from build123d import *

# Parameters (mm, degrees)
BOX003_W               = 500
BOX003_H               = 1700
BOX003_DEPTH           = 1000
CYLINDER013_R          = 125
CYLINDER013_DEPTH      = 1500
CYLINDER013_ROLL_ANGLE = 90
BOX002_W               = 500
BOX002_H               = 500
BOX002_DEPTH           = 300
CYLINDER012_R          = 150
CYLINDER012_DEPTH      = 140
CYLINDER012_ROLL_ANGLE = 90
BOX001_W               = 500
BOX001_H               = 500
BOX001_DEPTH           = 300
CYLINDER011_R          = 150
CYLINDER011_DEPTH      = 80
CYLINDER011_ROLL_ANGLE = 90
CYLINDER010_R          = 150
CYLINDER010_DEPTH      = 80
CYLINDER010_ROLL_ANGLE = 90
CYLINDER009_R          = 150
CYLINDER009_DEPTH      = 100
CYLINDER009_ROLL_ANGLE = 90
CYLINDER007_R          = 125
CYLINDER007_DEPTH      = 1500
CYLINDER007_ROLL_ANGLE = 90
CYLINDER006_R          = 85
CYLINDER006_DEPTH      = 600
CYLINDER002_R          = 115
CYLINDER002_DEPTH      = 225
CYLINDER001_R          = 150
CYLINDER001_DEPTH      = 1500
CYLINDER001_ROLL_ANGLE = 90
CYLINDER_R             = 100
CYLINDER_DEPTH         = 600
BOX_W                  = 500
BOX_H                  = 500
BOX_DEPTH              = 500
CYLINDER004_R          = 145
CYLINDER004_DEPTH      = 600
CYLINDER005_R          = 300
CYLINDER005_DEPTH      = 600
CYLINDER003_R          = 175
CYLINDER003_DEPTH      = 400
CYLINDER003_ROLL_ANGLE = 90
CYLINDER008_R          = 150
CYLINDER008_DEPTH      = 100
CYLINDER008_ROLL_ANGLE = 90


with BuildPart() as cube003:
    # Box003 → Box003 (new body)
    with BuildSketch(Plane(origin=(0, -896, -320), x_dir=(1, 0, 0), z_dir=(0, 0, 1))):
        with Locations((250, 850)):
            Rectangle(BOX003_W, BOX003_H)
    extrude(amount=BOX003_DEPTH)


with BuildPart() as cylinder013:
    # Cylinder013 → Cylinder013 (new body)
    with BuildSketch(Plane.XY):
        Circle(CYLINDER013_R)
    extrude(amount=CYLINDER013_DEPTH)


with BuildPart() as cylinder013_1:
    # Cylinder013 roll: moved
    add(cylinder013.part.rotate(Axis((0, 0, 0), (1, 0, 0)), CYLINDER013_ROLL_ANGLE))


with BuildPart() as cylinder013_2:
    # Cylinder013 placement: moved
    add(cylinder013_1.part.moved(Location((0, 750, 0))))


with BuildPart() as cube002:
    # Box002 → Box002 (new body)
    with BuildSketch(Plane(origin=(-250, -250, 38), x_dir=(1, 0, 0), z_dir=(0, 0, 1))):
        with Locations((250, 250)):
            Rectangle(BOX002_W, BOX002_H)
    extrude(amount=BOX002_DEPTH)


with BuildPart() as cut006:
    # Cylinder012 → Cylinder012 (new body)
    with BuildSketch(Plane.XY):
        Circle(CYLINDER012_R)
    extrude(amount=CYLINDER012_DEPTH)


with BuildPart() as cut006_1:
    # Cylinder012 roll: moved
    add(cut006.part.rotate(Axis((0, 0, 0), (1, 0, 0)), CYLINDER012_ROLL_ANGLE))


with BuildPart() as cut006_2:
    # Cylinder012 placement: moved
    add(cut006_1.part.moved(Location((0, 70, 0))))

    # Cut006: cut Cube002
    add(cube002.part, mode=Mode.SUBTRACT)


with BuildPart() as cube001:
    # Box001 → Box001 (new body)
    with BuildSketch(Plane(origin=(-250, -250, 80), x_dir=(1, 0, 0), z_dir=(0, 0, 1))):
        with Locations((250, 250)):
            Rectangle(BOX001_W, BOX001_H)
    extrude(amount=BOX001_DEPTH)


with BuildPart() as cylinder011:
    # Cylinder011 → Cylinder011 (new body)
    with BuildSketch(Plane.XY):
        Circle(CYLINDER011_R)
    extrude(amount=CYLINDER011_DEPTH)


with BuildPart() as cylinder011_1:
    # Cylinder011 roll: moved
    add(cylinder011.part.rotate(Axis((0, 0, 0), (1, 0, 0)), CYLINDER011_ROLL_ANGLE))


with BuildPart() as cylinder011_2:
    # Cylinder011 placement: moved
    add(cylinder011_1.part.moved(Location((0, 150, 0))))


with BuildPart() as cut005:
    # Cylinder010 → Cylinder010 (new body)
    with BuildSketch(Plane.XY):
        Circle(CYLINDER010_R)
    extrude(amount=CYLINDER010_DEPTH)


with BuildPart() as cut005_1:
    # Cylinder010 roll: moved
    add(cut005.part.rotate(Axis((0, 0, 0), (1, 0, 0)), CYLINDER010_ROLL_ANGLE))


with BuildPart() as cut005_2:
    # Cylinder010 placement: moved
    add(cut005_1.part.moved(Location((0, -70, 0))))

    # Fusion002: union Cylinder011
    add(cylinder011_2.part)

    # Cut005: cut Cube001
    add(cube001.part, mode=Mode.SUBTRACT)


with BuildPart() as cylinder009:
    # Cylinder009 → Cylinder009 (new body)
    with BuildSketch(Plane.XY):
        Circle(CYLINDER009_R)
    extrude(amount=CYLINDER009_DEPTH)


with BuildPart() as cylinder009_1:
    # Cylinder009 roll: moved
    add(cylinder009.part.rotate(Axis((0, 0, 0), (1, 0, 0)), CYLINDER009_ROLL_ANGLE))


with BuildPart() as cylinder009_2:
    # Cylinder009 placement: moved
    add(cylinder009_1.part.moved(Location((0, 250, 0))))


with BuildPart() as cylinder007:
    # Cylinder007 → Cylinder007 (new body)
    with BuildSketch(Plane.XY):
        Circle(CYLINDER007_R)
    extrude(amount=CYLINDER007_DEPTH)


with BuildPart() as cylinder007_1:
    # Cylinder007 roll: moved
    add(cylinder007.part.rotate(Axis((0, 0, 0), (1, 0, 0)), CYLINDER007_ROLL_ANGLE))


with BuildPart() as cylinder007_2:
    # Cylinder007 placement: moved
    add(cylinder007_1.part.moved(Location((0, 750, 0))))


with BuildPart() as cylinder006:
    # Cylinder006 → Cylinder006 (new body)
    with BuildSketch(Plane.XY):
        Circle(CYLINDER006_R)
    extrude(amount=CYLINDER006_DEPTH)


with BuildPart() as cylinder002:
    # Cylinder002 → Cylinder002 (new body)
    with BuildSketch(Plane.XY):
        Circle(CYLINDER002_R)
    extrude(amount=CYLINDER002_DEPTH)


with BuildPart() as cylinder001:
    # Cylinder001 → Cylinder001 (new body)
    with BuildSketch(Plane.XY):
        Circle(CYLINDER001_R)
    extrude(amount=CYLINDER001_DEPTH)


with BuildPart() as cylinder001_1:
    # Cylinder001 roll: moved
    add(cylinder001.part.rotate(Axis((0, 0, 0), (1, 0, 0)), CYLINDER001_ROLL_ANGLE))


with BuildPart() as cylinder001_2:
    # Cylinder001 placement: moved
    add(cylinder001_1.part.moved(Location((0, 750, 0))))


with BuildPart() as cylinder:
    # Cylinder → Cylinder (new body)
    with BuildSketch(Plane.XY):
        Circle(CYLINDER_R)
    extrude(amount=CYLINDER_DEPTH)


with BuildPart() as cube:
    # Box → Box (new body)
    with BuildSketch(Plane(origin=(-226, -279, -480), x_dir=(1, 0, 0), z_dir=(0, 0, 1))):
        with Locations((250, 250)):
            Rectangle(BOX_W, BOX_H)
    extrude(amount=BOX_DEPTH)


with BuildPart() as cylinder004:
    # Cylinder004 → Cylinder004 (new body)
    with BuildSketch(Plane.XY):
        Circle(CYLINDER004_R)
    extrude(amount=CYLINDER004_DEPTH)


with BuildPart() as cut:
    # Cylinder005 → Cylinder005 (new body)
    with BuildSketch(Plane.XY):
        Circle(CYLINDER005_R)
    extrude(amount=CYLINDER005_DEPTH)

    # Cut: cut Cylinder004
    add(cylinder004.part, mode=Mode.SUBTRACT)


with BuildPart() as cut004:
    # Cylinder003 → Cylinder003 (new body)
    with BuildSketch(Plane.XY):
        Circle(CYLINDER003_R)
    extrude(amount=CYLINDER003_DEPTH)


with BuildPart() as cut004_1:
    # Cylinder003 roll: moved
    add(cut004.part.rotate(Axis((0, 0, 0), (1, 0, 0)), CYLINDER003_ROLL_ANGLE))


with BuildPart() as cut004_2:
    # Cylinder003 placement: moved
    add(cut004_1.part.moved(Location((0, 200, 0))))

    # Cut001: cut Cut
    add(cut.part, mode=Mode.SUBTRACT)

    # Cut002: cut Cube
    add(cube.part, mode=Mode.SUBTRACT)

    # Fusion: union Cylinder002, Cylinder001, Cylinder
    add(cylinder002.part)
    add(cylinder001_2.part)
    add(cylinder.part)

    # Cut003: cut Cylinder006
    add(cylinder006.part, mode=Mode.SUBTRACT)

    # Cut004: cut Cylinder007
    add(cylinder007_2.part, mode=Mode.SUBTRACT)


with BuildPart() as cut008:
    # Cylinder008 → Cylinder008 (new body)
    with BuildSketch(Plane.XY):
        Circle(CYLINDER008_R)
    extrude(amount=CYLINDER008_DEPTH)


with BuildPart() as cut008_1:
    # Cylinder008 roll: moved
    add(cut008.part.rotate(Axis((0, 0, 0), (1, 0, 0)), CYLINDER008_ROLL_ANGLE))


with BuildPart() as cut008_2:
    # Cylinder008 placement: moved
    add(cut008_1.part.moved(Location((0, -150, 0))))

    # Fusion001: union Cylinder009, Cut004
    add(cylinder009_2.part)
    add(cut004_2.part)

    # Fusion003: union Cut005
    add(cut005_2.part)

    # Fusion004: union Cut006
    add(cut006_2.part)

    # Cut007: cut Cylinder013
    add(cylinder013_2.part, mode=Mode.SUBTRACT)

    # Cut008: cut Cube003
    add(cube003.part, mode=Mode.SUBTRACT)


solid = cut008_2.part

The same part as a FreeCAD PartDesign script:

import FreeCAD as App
import Part
import Sketcher
Q = App.Units.Quantity


def add_polygon(sketch, points):
    """Adds a closed chain of lines whose ends are joined by coincident constraints."""
    first, n = sketch.GeometryCount, len(points)
    for a, b in zip(points, points[1:] + points[:1]):
        sketch.addGeometry(Part.LineSegment(App.Vector(*a, 0), App.Vector(*b, 0)), False)
    for i in range(n):
        sketch.addConstraint(Sketcher.Constraint("Coincident", first + i, 2, first + (i + 1) % n, 1))

doc = App.newDocument("Part")
body = doc.addObject("PartDesign::Body", "Body")

sketch1 = body.newObject("Sketcher::SketchObject", "Sketch")
sketch1.AttachmentSupport = (doc.getObject("XY_Plane"), [""])
sketch1.MapMode = "FlatFace"
sketch1.AttachmentOffset = App.Placement(App.Vector(0, 0, -320), App.Rotation())
add_polygon(sketch1, [(0, 804), (0, -896), (500, -896), (500, 804)])
sketch1.addConstraint(Sketcher.Constraint("Vertical", 0))
sketch1.addConstraint(Sketcher.Constraint("Horizontal", 1))
sketch1.addConstraint(Sketcher.Constraint("Vertical", 2))
sketch1.addConstraint(Sketcher.Constraint("Horizontal", 3))
sketch1.addConstraint(Sketcher.Constraint("PointOnObject", 0, 2, -2))
sketch1.addConstraint(Sketcher.Constraint("DistanceX", 1, 1, 1, 2, Q("500 mm")))
sketch1.addConstraint(Sketcher.Constraint("DistanceY", 0, 2, 0, 1, Q("1700 mm")))
sketch1.addConstraint(Sketcher.Constraint("DistanceY", 0, 2, -1, 1, Q("896 mm")))
pad1 = body.newObject("PartDesign::Pad", "Pad")
pad1.Profile = sketch1
pad1.Length = 1000
body2 = doc.addObject("PartDesign::Body", "Body001")

sketch2 = body2.newObject("Sketcher::SketchObject", "Sketch001")
sketch2.AttachmentSupport = (doc.getObject("XY_Plane001"), [""])
sketch2.MapMode = "FlatFace"
sketch2.addGeometry(Part.Circle(App.Vector(0, 0, 0), App.Vector(0, 0, 1), 125), False)
sketch2.addConstraint(Sketcher.Constraint("Coincident", 0, 3, -1, 1))
sketch2.addConstraint(Sketcher.Constraint("Diameter", 0, Q("250 mm")))
pad2 = body2.newObject("PartDesign::Pad", "Pad001")
pad2.Profile = sketch2
pad2.Length = 1500
body3 = doc.addObject("PartDesign::Body", "Body002")
doc.recompute()

body2.Placement = App.Placement(App.Vector(0, 0, 0), App.Rotation(App.Vector(1, 0, 0), 90))
boolean = body3.newObject("PartDesign::Boolean", "Boolean")
boolean.Type = "Fuse"
boolean.addObjects([body2])
body4 = doc.addObject("PartDesign::Body", "Body003")
doc.recompute()

body3.Placement = App.Placement(App.Vector(0, 750, 0), App.Rotation(App.Vector(0, 0, 1), 0))
boolean2 = body4.newObject("PartDesign::Boolean", "Boolean001")
boolean2.Type = "Fuse"
boolean2.addObjects([body3])
body5 = doc.addObject("PartDesign::Body", "Body004")

sketch3 = body5.newObject("Sketcher::SketchObject", "Sketch002")
sketch3.AttachmentSupport = (doc.getObject("XY_Plane004"), [""])
sketch3.MapMode = "FlatFace"
sketch3.AttachmentOffset = App.Placement(App.Vector(0, 0, 38), App.Rotation())
add_polygon(sketch3, [(-250, 250), (-250, -250), (250, -250), (250, 250)])
sketch3.addConstraint(Sketcher.Constraint("Vertical", 0))
sketch3.addConstraint(Sketcher.Constraint("Horizontal", 1))
sketch3.addConstraint(Sketcher.Constraint("Vertical", 2))
sketch3.addConstraint(Sketcher.Constraint("Horizontal", 3))
sketch3.addConstraint(Sketcher.Constraint("Symmetric", 0, 2, 2, 2, -1, 1))
sketch3.addConstraint(Sketcher.Constraint("Equal", 3, 0))
sketch3.addConstraint(Sketcher.Constraint("DistanceX", 1, 1, 1, 2, Q("500 mm")))
pad3 = body5.newObject("PartDesign::Pad", "Pad002")
pad3.Profile = sketch3
pad3.Length = 300
body6 = doc.addObject("PartDesign::Body", "Body005")

sketch4 = body6.newObject("Sketcher::SketchObject", "Sketch003")
sketch4.AttachmentSupport = (doc.getObject("XY_Plane005"), [""])
sketch4.MapMode = "FlatFace"
sketch4.addGeometry(Part.Circle(App.Vector(0, 0, 0), App.Vector(0, 0, 1), 150), False)
sketch4.addConstraint(Sketcher.Constraint("Coincident", 0, 3, -1, 1))
sketch4.addConstraint(Sketcher.Constraint("Diameter", 0, Q("300 mm")))
pad4 = body6.newObject("PartDesign::Pad", "Pad003")
pad4.Profile = sketch4
pad4.Length = 140
body7 = doc.addObject("PartDesign::Body", "Body006")
doc.recompute()

body6.Placement = App.Placement(App.Vector(0, 0, 0), App.Rotation(App.Vector(1, 0, 0), 90))
boolean3 = body7.newObject("PartDesign::Boolean", "Boolean002")
boolean3.Type = "Fuse"
boolean3.addObjects([body6])
body8 = doc.addObject("PartDesign::Body", "Body007")
doc.recompute()

body7.Placement = App.Placement(App.Vector(0, 70, 0), App.Rotation(App.Vector(0, 0, 1), 0))
boolean4 = body8.newObject("PartDesign::Boolean", "Boolean003")
boolean4.Type = "Fuse"
boolean4.addObjects([body7])
doc.recompute()

boolean5 = body8.newObject("PartDesign::Boolean", "Boolean004")
boolean5.Type = "Cut"
boolean5.addObjects([body5])
body9 = doc.addObject("PartDesign::Body", "Body008")

sketch5 = body9.newObject("Sketcher::SketchObject", "Sketch004")
sketch5.AttachmentSupport = (doc.getObject("XY_Plane008"), [""])
sketch5.MapMode = "FlatFace"
sketch5.AttachmentOffset = App.Placement(App.Vector(0, 0, 80), App.Rotation())
add_polygon(sketch5, [(-250, 250), (-250, -250), (250, -250), (250, 250)])
sketch5.addConstraint(Sketcher.Constraint("Vertical", 0))
sketch5.addConstraint(Sketcher.Constraint("Horizontal", 1))
sketch5.addConstraint(Sketcher.Constraint("Vertical", 2))
sketch5.addConstraint(Sketcher.Constraint("Horizontal", 3))
sketch5.addConstraint(Sketcher.Constraint("Symmetric", 0, 2, 2, 2, -1, 1))
sketch5.addConstraint(Sketcher.Constraint("Equal", 3, 0))
sketch5.addConstraint(Sketcher.Constraint("DistanceX", 1, 1, 1, 2, Q("500 mm")))
pad5 = body9.newObject("PartDesign::Pad", "Pad004")
pad5.Profile = sketch5
pad5.Length = 300
body10 = doc.addObject("PartDesign::Body", "Body009")

sketch6 = body10.newObject("Sketcher::SketchObject", "Sketch005")
sketch6.AttachmentSupport = (doc.getObject("XY_Plane009"), [""])
sketch6.MapMode = "FlatFace"
sketch6.addGeometry(Part.Circle(App.Vector(0, 0, 0), App.Vector(0, 0, 1), 150), False)
sketch6.addConstraint(Sketcher.Constraint("Coincident", 0, 3, -1, 1))
sketch6.addConstraint(Sketcher.Constraint("Diameter", 0, Q("300 mm")))
pad6 = body10.newObject("PartDesign::Pad", "Pad005")
pad6.Profile = sketch6
pad6.Length = 80
body11 = doc.addObject("PartDesign::Body", "Body010")
doc.recompute()

body10.Placement = App.Placement(App.Vector(0, 0, 0), App.Rotation(App.Vector(1, 0, 0), 90))
boolean6 = body11.newObject("PartDesign::Boolean", "Boolean005")
boolean6.Type = "Fuse"
boolean6.addObjects([body10])
body12 = doc.addObject("PartDesign::Body", "Body011")
doc.recompute()

body11.Placement = App.Placement(App.Vector(0, 150, 0), App.Rotation(App.Vector(0, 0, 1), 0))
boolean7 = body12.newObject("PartDesign::Boolean", "Boolean006")
boolean7.Type = "Fuse"
boolean7.addObjects([body11])
body13 = doc.addObject("PartDesign::Body", "Body012")

sketch7 = body13.newObject("Sketcher::SketchObject", "Sketch006")
sketch7.AttachmentSupport = (doc.getObject("XY_Plane012"), [""])
sketch7.MapMode = "FlatFace"
sketch7.addGeometry(Part.Circle(App.Vector(0, 0, 0), App.Vector(0, 0, 1), 150), False)
sketch7.addConstraint(Sketcher.Constraint("Coincident", 0, 3, -1, 1))
sketch7.addConstraint(Sketcher.Constraint("Diameter", 0, Q("300 mm")))
pad7 = body13.newObject("PartDesign::Pad", "Pad006")
pad7.Profile = sketch7
pad7.Length = 80
body14 = doc.addObject("PartDesign::Body", "Body013")
doc.recompute()

body13.Placement = App.Placement(App.Vector(0, 0, 0), App.Rotation(App.Vector(1, 0, 0), 90))
boolean8 = body14.newObject("PartDesign::Boolean", "Boolean007")
boolean8.Type = "Fuse"
boolean8.addObjects([body13])
body15 = doc.addObject("PartDesign::Body", "Body014")
body15.AllowCompound = True
doc.recompute()

body14.Placement = App.Placement(App.Vector(0, -70, 0), App.Rotation(App.Vector(0, 0, 1), 0))
boolean9 = body15.newObject("PartDesign::Boolean", "Boolean008")
boolean9.Type = "Fuse"
boolean9.addObjects([body14])
doc.recompute()

boolean10 = body15.newObject("PartDesign::Boolean", "Boolean009")
boolean10.Type = "Fuse"
boolean10.addObjects([body12])
doc.recompute()

boolean11 = body15.newObject("PartDesign::Boolean", "Boolean010")
boolean11.Type = "Cut"
boolean11.addObjects([body9])
body16 = doc.addObject("PartDesign::Body", "Body015")

sketch8 = body16.newObject("Sketcher::SketchObject", "Sketch007")
sketch8.AttachmentSupport = (doc.getObject("XY_Plane015"), [""])
sketch8.MapMode = "FlatFace"
sketch8.addGeometry(Part.Circle(App.Vector(0, 0, 0), App.Vector(0, 0, 1), 150), False)
sketch8.addConstraint(Sketcher.Constraint("Coincident", 0, 3, -1, 1))
sketch8.addConstraint(Sketcher.Constraint("Diameter", 0, Q("300 mm")))
pad8 = body16.newObject("PartDesign::Pad", "Pad007")
pad8.Profile = sketch8
pad8.Length = 100
body17 = doc.addObject("PartDesign::Body", "Body016")
doc.recompute()

body16.Placement = App.Placement(App.Vector(0, 0, 0), App.Rotation(App.Vector(1, 0, 0), 90))
boolean12 = body17.newObject("PartDesign::Boolean", "Boolean011")
boolean12.Type = "Fuse"
boolean12.addObjects([body16])
body18 = doc.addObject("PartDesign::Body", "Body017")
doc.recompute()

body17.Placement = App.Placement(App.Vector(0, 250, 0), App.Rotation(App.Vector(0, 0, 1), 0))
boolean13 = body18.newObject("PartDesign::Boolean", "Boolean012")
boolean13.Type = "Fuse"
boolean13.addObjects([body17])
body19 = doc.addObject("PartDesign::Body", "Body018")

sketch9 = body19.newObject("Sketcher::SketchObject", "Sketch008")
sketch9.AttachmentSupport = (doc.getObject("XY_Plane018"), [""])
sketch9.MapMode = "FlatFace"
sketch9.addGeometry(Part.Circle(App.Vector(0, 0, 0), App.Vector(0, 0, 1), 125), False)
sketch9.addConstraint(Sketcher.Constraint("Coincident", 0, 3, -1, 1))
sketch9.addConstraint(Sketcher.Constraint("Diameter", 0, Q("250 mm")))
pad9 = body19.newObject("PartDesign::Pad", "Pad008")
pad9.Profile = sketch9
pad9.Length = 1500
body20 = doc.addObject("PartDesign::Body", "Body019")
doc.recompute()

body19.Placement = App.Placement(App.Vector(0, 0, 0), App.Rotation(App.Vector(1, 0, 0), 90))
boolean14 = body20.newObject("PartDesign::Boolean", "Boolean013")
boolean14.Type = "Fuse"
boolean14.addObjects([body19])
body21 = doc.addObject("PartDesign::Body", "Body020")
doc.recompute()

body20.Placement = App.Placement(App.Vector(0, 750, 0), App.Rotation(App.Vector(0, 0, 1), 0))
boolean15 = body21.newObject("PartDesign::Boolean", "Boolean014")
boolean15.Type = "Fuse"
boolean15.addObjects([body20])
body22 = doc.addObject("PartDesign::Body", "Body021")

sketch10 = body22.newObject("Sketcher::SketchObject", "Sketch009")
sketch10.AttachmentSupport = (doc.getObject("XY_Plane021"), [""])
sketch10.MapMode = "FlatFace"
sketch10.addGeometry(Part.Circle(App.Vector(0, 0, 0), App.Vector(0, 0, 1), 85), False)
sketch10.addConstraint(Sketcher.Constraint("Coincident", 0, 3, -1, 1))
sketch10.addConstraint(Sketcher.Constraint("Diameter", 0, Q("170 mm")))
pad10 = body22.newObject("PartDesign::Pad", "Pad009")
pad10.Profile = sketch10
pad10.Length = 600
body23 = doc.addObject("PartDesign::Body", "Body022")

sketch11 = body23.newObject("Sketcher::SketchObject", "Sketch010")
sketch11.AttachmentSupport = (doc.getObject("XY_Plane022"), [""])
sketch11.MapMode = "FlatFace"
sketch11.addGeometry(Part.Circle(App.Vector(0, 0, 0), App.Vector(0, 0, 1), 115), False)
sketch11.addConstraint(Sketcher.Constraint("Coincident", 0, 3, -1, 1))
sketch11.addConstraint(Sketcher.Constraint("Diameter", 0, Q("230 mm")))
pad11 = body23.newObject("PartDesign::Pad", "Pad010")
pad11.Profile = sketch11
pad11.Length = 225
body24 = doc.addObject("PartDesign::Body", "Body023")

sketch12 = body24.newObject("Sketcher::SketchObject", "Sketch011")
sketch12.AttachmentSupport = (doc.getObject("XY_Plane023"), [""])
sketch12.MapMode = "FlatFace"
sketch12.addGeometry(Part.Circle(App.Vector(0, 0, 0), App.Vector(0, 0, 1), 150), False)
sketch12.addConstraint(Sketcher.Constraint("Coincident", 0, 3, -1, 1))
sketch12.addConstraint(Sketcher.Constraint("Diameter", 0, Q("300 mm")))
pad12 = body24.newObject("PartDesign::Pad", "Pad011")
pad12.Profile = sketch12
pad12.Length = 1500
body25 = doc.addObject("PartDesign::Body", "Body024")
doc.recompute()

body24.Placement = App.Placement(App.Vector(0, 0, 0), App.Rotation(App.Vector(1, 0, 0), 90))
boolean16 = body25.newObject("PartDesign::Boolean", "Boolean015")
boolean16.Type = "Fuse"
boolean16.addObjects([body24])
body26 = doc.addObject("PartDesign::Body", "Body025")
doc.recompute()

body25.Placement = App.Placement(App.Vector(0, 750, 0), App.Rotation(App.Vector(0, 0, 1), 0))
boolean17 = body26.newObject("PartDesign::Boolean", "Boolean016")
boolean17.Type = "Fuse"
boolean17.addObjects([body25])
body27 = doc.addObject("PartDesign::Body", "Body026")

sketch13 = body27.newObject("Sketcher::SketchObject", "Sketch012")
sketch13.AttachmentSupport = (doc.getObject("XY_Plane026"), [""])
sketch13.MapMode = "FlatFace"
sketch13.addGeometry(Part.Circle(App.Vector(0, 0, 0), App.Vector(0, 0, 1), 100), False)
sketch13.addConstraint(Sketcher.Constraint("Coincident", 0, 3, -1, 1))
sketch13.addConstraint(Sketcher.Constraint("Diameter", 0, Q("200 mm")))
pad13 = body27.newObject("PartDesign::Pad", "Pad012")
pad13.Profile = sketch13
pad13.Length = 600
body28 = doc.addObject("PartDesign::Body", "Body027")

sketch14 = body28.newObject("Sketcher::SketchObject", "Sketch013")
sketch14.AttachmentSupport = (doc.getObject("XY_Plane027"), [""])
sketch14.MapMode = "FlatFace"
sketch14.AttachmentOffset = App.Placement(App.Vector(0, 0, -480), App.Rotation())
add_polygon(sketch14, [(-226, 221), (-226, -279), (274, -279), (274, 221)])
sketch14.addConstraint(Sketcher.Constraint("Vertical", 0))
sketch14.addConstraint(Sketcher.Constraint("Horizontal", 1))
sketch14.addConstraint(Sketcher.Constraint("Vertical", 2))
sketch14.addConstraint(Sketcher.Constraint("Horizontal", 3))
sketch14.addConstraint(Sketcher.Constraint("Equal", 3, 0))
sketch14.addConstraint(Sketcher.Constraint("DistanceX", 1, 1, 1, 2, Q("500 mm")))
sketch14.addConstraint(Sketcher.Constraint("DistanceX", 0, 2, -1, 1, Q("226 mm")))
sketch14.addConstraint(Sketcher.Constraint("DistanceY", 0, 2, -1, 1, Q("279 mm")))
pad14 = body28.newObject("PartDesign::Pad", "Pad013")
pad14.Profile = sketch14
pad14.Length = 500
body29 = doc.addObject("PartDesign::Body", "Body028")

sketch15 = body29.newObject("Sketcher::SketchObject", "Sketch014")
sketch15.AttachmentSupport = (doc.getObject("XY_Plane028"), [""])
sketch15.MapMode = "FlatFace"
sketch15.addGeometry(Part.Circle(App.Vector(0, 0, 0), App.Vector(0, 0, 1), 145), False)
sketch15.addConstraint(Sketcher.Constraint("Coincident", 0, 3, -1, 1))
sketch15.addConstraint(Sketcher.Constraint("Diameter", 0, Q("290 mm")))
pad15 = body29.newObject("PartDesign::Pad", "Pad014")
pad15.Profile = sketch15
pad15.Length = 600
body30 = doc.addObject("PartDesign::Body", "Body029")

sketch16 = body30.newObject("Sketcher::SketchObject", "Sketch015")
sketch16.AttachmentSupport = (doc.getObject("XY_Plane029"), [""])
sketch16.MapMode = "FlatFace"
sketch16.addGeometry(Part.Circle(App.Vector(0, 0, 0), App.Vector(0, 0, 1), 300), False)
sketch16.addConstraint(Sketcher.Constraint("Coincident", 0, 3, -1, 1))
sketch16.addConstraint(Sketcher.Constraint("Diameter", 0, Q("600 mm")))
pad16 = body30.newObject("PartDesign::Pad", "Pad015")
pad16.Profile = sketch16
pad16.Length = 600
doc.recompute()

boolean18 = body30.newObject("PartDesign::Boolean", "Boolean017")
boolean18.Type = "Cut"
boolean18.addObjects([body29])
body31 = doc.addObject("PartDesign::Body", "Body030")

sketch17 = body31.newObject("Sketcher::SketchObject", "Sketch016")
sketch17.AttachmentSupport = (doc.getObject("XY_Plane030"), [""])
sketch17.MapMode = "FlatFace"
sketch17.addGeometry(Part.Circle(App.Vector(0, 0, 0), App.Vector(0, 0, 1), 175), False)
sketch17.addConstraint(Sketcher.Constraint("Coincident", 0, 3, -1, 1))
sketch17.addConstraint(Sketcher.Constraint("Diameter", 0, Q("350 mm")))
pad17 = body31.newObject("PartDesign::Pad", "Pad016")
pad17.Profile = sketch17
pad17.Length = 400
body32 = doc.addObject("PartDesign::Body", "Body031")
doc.recompute()

body31.Placement = App.Placement(App.Vector(0, 0, 0), App.Rotation(App.Vector(1, 0, 0), 90))
boolean19 = body32.newObject("PartDesign::Boolean", "Boolean018")
boolean19.Type = "Fuse"
boolean19.addObjects([body31])
body33 = doc.addObject("PartDesign::Body", "Body032")
doc.recompute()

body32.Placement = App.Placement(App.Vector(0, 200, 0), App.Rotation(App.Vector(0, 0, 1), 0))
boolean20 = body33.newObject("PartDesign::Boolean", "Boolean019")
boolean20.Type = "Fuse"
boolean20.addObjects([body32])
doc.recompute()

boolean21 = body33.newObject("PartDesign::Boolean", "Boolean020")
boolean21.Type = "Cut"
boolean21.addObjects([body30])
doc.recompute()

boolean22 = body33.newObject("PartDesign::Boolean", "Boolean021")
boolean22.Type = "Cut"
boolean22.addObjects([body28])
doc.recompute()

boolean23 = body33.newObject("PartDesign::Boolean", "Boolean022")
boolean23.Type = "Fuse"
boolean23.addObjects([body23])
doc.recompute()

boolean24 = body33.newObject("PartDesign::Boolean", "Boolean023")
boolean24.Type = "Fuse"
boolean24.addObjects([body26])
doc.recompute()

boolean25 = body33.newObject("PartDesign::Boolean", "Boolean024")
boolean25.Type = "Fuse"
boolean25.addObjects([body27])
doc.recompute()

boolean26 = body33.newObject("PartDesign::Boolean", "Boolean025")
boolean26.Type = "Cut"
boolean26.addObjects([body22])
doc.recompute()

boolean27 = body33.newObject("PartDesign::Boolean", "Boolean026")
boolean27.Type = "Cut"
boolean27.addObjects([body21])
body34 = doc.addObject("PartDesign::Body", "Body033")

sketch18 = body34.newObject("Sketcher::SketchObject", "Sketch017")
sketch18.AttachmentSupport = (doc.getObject("XY_Plane033"), [""])
sketch18.MapMode = "FlatFace"
sketch18.addGeometry(Part.Circle(App.Vector(0, 0, 0), App.Vector(0, 0, 1), 150), False)
sketch18.addConstraint(Sketcher.Constraint("Coincident", 0, 3, -1, 1))
sketch18.addConstraint(Sketcher.Constraint("Diameter", 0, Q("300 mm")))
pad18 = body34.newObject("PartDesign::Pad", "Pad017")
pad18.Profile = sketch18
pad18.Length = 100
body35 = doc.addObject("PartDesign::Body", "Body034")
doc.recompute()

body34.Placement = App.Placement(App.Vector(0, 0, 0), App.Rotation(App.Vector(1, 0, 0), 90))
boolean28 = body35.newObject("PartDesign::Boolean", "Boolean027")
boolean28.Type = "Fuse"
boolean28.addObjects([body34])
body36 = doc.addObject("PartDesign::Body", "Body035")
body36.AllowCompound = True
doc.recompute()

body35.Placement = App.Placement(App.Vector(0, -150, 0), App.Rotation(App.Vector(0, 0, 1), 0))
boolean29 = body36.newObject("PartDesign::Boolean", "Boolean028")
boolean29.Type = "Fuse"
boolean29.addObjects([body35])
doc.recompute()

boolean30 = body36.newObject("PartDesign::Boolean", "Boolean029")
boolean30.Type = "Fuse"
boolean30.addObjects([body18])
doc.recompute()

boolean31 = body36.newObject("PartDesign::Boolean", "Boolean030")
boolean31.Type = "Fuse"
boolean31.addObjects([body33])
doc.recompute()

boolean32 = body36.newObject("PartDesign::Boolean", "Boolean031")
boolean32.Type = "Fuse"
boolean32.addObjects([body15])
doc.recompute()

boolean33 = body36.newObject("PartDesign::Boolean", "Boolean032")
boolean33.Type = "Fuse"
boolean33.addObjects([body8])
doc.recompute()

boolean34 = body36.newObject("PartDesign::Boolean", "Boolean033")
boolean34.Type = "Cut"
boolean34.addObjects([body4])
doc.recompute()

boolean35 = body36.newObject("PartDesign::Boolean", "Boolean034")
boolean35.Type = "Cut"
boolean35.addObjects([body])

doc.recompute()
